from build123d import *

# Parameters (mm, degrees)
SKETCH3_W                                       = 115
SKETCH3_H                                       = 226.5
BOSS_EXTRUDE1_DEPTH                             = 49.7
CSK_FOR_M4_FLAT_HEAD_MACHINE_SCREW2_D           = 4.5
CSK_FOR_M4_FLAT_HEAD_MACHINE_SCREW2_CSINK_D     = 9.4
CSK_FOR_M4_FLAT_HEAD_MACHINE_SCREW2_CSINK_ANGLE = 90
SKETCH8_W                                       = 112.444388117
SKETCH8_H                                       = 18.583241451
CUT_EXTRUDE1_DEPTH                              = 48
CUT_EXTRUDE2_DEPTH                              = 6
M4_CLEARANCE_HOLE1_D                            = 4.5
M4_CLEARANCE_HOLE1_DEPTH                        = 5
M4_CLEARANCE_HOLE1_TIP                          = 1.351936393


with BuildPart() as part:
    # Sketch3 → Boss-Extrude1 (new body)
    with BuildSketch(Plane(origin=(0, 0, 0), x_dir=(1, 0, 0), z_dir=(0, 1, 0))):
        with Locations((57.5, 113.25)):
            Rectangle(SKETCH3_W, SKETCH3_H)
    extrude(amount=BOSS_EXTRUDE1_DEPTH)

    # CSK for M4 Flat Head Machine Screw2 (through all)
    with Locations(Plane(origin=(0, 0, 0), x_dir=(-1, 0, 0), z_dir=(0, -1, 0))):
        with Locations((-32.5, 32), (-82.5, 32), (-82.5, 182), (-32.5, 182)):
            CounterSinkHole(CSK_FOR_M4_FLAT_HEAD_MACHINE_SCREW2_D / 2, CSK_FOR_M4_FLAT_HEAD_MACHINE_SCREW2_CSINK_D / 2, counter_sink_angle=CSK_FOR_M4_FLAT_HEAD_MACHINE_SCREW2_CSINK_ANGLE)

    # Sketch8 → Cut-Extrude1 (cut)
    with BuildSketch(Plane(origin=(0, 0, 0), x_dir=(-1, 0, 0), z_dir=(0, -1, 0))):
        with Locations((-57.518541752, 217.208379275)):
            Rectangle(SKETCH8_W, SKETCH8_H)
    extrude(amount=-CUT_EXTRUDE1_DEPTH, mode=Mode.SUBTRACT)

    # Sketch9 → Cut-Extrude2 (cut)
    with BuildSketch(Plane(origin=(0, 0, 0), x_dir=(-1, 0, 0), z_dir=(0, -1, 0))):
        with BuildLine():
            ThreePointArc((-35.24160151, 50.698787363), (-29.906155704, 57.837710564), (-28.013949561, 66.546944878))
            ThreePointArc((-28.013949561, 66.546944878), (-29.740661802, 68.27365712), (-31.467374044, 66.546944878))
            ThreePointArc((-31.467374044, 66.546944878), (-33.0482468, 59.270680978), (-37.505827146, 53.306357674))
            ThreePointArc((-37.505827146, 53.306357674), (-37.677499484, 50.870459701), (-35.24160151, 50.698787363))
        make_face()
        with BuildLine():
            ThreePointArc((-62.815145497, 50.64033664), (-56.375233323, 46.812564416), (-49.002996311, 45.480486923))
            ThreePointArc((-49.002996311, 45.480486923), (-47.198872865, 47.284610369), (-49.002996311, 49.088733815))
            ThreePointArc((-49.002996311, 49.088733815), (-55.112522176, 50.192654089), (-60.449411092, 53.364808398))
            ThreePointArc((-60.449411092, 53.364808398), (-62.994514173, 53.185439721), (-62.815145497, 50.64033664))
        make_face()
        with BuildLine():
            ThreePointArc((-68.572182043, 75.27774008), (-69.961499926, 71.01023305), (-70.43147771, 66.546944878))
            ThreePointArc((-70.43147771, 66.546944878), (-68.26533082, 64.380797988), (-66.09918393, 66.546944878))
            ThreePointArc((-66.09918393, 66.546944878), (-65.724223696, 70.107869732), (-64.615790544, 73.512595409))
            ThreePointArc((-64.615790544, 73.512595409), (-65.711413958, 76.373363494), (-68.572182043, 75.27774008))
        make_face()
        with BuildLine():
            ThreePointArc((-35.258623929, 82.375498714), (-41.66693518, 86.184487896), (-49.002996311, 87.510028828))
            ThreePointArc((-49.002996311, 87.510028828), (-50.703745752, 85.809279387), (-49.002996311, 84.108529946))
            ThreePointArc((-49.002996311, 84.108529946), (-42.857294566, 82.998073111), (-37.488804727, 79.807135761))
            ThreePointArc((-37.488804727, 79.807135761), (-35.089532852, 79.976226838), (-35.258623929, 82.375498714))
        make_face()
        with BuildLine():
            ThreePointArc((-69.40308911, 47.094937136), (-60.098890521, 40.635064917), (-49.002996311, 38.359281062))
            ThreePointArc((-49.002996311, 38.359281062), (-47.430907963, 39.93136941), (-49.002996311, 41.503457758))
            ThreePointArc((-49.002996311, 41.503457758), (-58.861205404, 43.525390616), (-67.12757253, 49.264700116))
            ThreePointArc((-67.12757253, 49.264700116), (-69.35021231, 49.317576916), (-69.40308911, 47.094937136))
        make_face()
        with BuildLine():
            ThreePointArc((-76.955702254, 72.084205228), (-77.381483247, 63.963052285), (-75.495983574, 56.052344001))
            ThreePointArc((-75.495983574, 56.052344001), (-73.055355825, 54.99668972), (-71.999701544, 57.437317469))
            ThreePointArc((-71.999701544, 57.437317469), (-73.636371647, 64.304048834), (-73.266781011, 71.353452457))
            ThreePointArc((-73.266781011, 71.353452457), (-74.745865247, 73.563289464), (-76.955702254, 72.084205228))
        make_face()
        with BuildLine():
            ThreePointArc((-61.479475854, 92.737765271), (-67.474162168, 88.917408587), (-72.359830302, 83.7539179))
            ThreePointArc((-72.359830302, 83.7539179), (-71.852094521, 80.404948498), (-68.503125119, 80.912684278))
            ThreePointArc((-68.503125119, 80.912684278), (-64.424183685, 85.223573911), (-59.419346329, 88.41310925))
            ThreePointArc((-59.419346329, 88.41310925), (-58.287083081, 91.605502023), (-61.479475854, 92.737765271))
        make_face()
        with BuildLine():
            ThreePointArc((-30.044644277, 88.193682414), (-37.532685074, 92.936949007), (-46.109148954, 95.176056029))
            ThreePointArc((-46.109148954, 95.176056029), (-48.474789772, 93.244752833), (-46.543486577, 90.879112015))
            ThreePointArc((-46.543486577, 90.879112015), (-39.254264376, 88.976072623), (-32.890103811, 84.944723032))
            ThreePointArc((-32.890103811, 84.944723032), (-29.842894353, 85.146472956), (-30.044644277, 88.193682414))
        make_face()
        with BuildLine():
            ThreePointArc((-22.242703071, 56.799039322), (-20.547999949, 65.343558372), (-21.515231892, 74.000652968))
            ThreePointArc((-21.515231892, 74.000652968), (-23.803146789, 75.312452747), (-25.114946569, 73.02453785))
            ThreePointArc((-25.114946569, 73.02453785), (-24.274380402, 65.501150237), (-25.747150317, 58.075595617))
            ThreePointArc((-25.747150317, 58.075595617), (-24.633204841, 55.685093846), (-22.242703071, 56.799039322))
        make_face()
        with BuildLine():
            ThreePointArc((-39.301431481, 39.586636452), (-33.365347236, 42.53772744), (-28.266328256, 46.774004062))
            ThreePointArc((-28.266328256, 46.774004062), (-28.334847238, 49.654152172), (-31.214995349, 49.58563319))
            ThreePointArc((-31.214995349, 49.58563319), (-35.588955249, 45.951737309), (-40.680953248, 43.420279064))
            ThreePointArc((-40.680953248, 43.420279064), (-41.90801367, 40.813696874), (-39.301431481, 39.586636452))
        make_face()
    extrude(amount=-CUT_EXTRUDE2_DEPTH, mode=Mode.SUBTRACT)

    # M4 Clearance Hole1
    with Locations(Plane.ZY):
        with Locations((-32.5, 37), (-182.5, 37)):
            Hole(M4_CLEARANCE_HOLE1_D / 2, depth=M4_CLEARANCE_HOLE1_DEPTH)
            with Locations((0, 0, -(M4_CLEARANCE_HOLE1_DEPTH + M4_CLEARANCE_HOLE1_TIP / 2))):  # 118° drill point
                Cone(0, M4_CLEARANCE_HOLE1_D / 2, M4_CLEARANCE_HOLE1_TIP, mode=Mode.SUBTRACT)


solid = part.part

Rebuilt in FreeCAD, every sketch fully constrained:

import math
import FreeCAD as App
import Part
import Sketcher
from FreeCAD import Vector
Q = App.Units.Quantity

doc = App.newDocument("Part")
body = doc.addObject("PartDesign::Body", "Body")

sketch1 = doc.addObject("Sketcher::SketchObject", "Sketch")
body.addObject(sketch1)
sketch1.AttachmentSupport = (doc.XZ_Plane, [""])
sketch1.MapMode = "FlatFace"
sketch1.addGeometry(Part.LineSegment(Vector(0, -226, 0), Vector(0, 0, 0)), False)
sketch1.addGeometry(Part.LineSegment(Vector(0, 0, 0), Vector(115, 0, 0)), False)
sketch1.addGeometry(Part.LineSegment(Vector(115, 0, 0), Vector(115, -226, 0)), False)
sketch1.addGeometry(Part.LineSegment(Vector(115, -226, 0), Vector(0, -226, 0)), False)
sketch1.addConstraint(Sketcher.Constraint("Coincident", 0, 2, 1, 1))
sketch1.addConstraint(Sketcher.Constraint("Coincident", 1, 2, 2, 1))
sketch1.addConstraint(Sketcher.Constraint("Coincident", 2, 2, 3, 1))
sketch1.addConstraint(Sketcher.Constraint("Coincident", 3, 2, 0, 1))
sketch1.addConstraint(Sketcher.Constraint("Vertical", 0))
sketch1.addConstraint(Sketcher.Constraint("Horizontal", 1))
sketch1.addConstraint(Sketcher.Constraint("Vertical", 2))
sketch1.addConstraint(Sketcher.Constraint("Horizontal", 3))
sketch1.addConstraint(Sketcher.Constraint("Coincident", 0, 2, -1, 1))
sketch1.addConstraint(Sketcher.Constraint("DistanceX", 1, 1, 1, 2, Q("115 mm")))
sketch1.addConstraint(Sketcher.Constraint("DistanceY", 0, 1, 0, 2, Q("226.5 mm")))
pad1 = doc.addObject("PartDesign::Pad", "Pad")
body.addObject(pad1)
pad1.Profile = sketch1
pad1.Length = 49.7
pad1.Reversed = True

sketch2 = doc.addObject("Sketcher::SketchObject", "Sketch001")
body.addObject(sketch2)
sketch2.AttachmentSupport = (doc.XZ_Plane, [""])
sketch2.MapMode = "FlatFace"
sketch2.addGeometry(Part.Circle(Vector(32.5, -32, 0), Vector(0, 0, 1), 2.2), False)
sketch2.addGeometry(Part.Circle(Vector(82.5, -32, 0), Vector(0, 0, 1), 2.2), False)
sketch2.addGeometry(Part.Circle(Vector(82.5, -182, 0), Vector(0, 0, 1), 2.2), False)
sketch2.addGeometry(Part.Circle(Vector(32.5, -182, 0), Vector(0, 0, 1), 2.2), False)
sketch2.addConstraint(Sketcher.Constraint("Equal", 0, 1))
sketch2.addConstraint(Sketcher.Constraint("Equal", 1, 2))
sketch2.addConstraint(Sketcher.Constraint("Equal", 2, 3))
sketch2.addConstraint(Sketcher.Constraint("Horizontal", 0, 3, 1, 3))
sketch2.addConstraint(Sketcher.Constraint("Horizontal", 2, 3, 3, 3))
sketch2.addConstraint(Sketcher.Constraint("Vertical", 1, 3, 2, 3))
sketch2.addConstraint(Sketcher.Constraint("Vertical", 0, 3, 3, 3))
sketch2.addConstraint(Sketcher.Constraint("Diameter", 0, Q("4.5 mm")))
sketch2.addConstraint(Sketcher.Constraint("DistanceY", 0, 3, -1, 1, Q("32 mm")))
sketch2.addConstraint(Sketcher.Constraint("DistanceY", 2, 3, -1, 1, Q("182 mm")))
sketch2.addConstraint(Sketcher.Constraint("DistanceX", 0, 3, 1, 3, Q("50 mm")))
sketch2.addConstraint(Sketcher.Constraint("DistanceX", -1, 1, 0, 3, Q("32.5 mm")))
doc.recompute()
hole = doc.addObject("PartDesign::Hole", "Hole")
body.addObject(hole)
hole.Profile = sketch2
hole.ThreadType = "None"
hole.Diameter = 4.5
hole.DepthType = "ThroughAll"
hole.HoleCutType = "Countersink"
hole.HoleCutDiameter = 9.4
hole.HoleCutCountersinkAngle = 90

sketch3 = doc.addObject("Sketcher::SketchObject", "Sketch002")
body.addObject(sketch3)
sketch3.AttachmentSupport = (doc.XZ_Plane, [""])
sketch3.MapMode = "FlatFace"
sketch3.addGeometry(Part.LineSegment(Vector(114, -226, 0), Vector(114, -208, 0)), False)
sketch3.addGeometry(Part.LineSegment(Vector(114, -208, 0), Vector(1, -208, 0)), False)
sketch3.addGeometry(Part.LineSegment(Vector(1, -208, 0), Vector(1, -226, 0)), False)
sketch3.addGeometry(Part.LineSegment(Vector(1, -226, 0), Vector(114, -226, 0)), False)
sketch3.addConstraint(Sketcher.Constraint("Coincident", 0, 2, 1, 1))
sketch3.addConstraint(Sketcher.Constraint("Coincident", 1, 2, 2, 1))
sketch3.addConstraint(Sketcher.Constraint("Coincident", 2, 2, 3, 1))
sketch3.addConstraint(Sketcher.Constraint("Coincident", 3, 2, 0, 1))
sketch3.addConstraint(Sketcher.Constraint("Vertical", 0))
sketch3.addConstraint(Sketcher.Constraint("Horizontal", 1))
sketch3.addConstraint(Sketcher.Constraint("Vertical", 2))
sketch3.addConstraint(Sketcher.Constraint("Horizontal", 3))
sketch3.addConstraint(Sketcher.Constraint("DistanceY", 2, 2, -1, 1, Q("226.5 mm")))
sketch3.addConstraint(Sketcher.Constraint("DistanceX", 1, 2, 1, 1, Q("112.444388 mm")))
sketch3.addConstraint(Sketcher.Constraint("DistanceY", 0, 1, 0, 2, Q("18.583241 mm")))
sketch3.addConstraint(Sketcher.Constraint("DistanceX", -1, 1, 0, 2, Q("113.740736 mm")))
pocket1 = doc.addObject("PartDesign::Pocket", "Pocket")
body.addObject(pocket1)
pocket1.Profile = sketch3
pocket1.Length = 48

sketch4 = doc.addObject("Sketcher::SketchObject", "Sketch003")
body.addObject(sketch4)
sketch4.AttachmentSupport = (doc.XZ_Plane, [""])
sketch4.MapMode = "FlatFace"
sketch4.addGeometry(Part.ArcOfCircle(Part.Circle(Vector(49, -66.5, 0), Vector(0, 0, 1), 21), math.radians(131), math.radians(180)), False)
sketch4.addGeometry(Part.ArcOfCircle(Part.Circle(Vector(29.7, -66.5, 0), Vector(0, 0, 1), 1.7), math.radians(180), math.radians(360)), False)
sketch4.addGeometry(Part.ArcOfCircle(Part.Circle(Vector(49, -66.5, 0), Vector(0, 0, 1), 17.5), math.radians(131), math.radians(180)), False)
sketch4.addGeometry(Part.ArcOfCircle(Part.Circle(Vector(36.4, -52, 0), Vector(0, 0, 1), 1.7), math.radians(-49), math.radians(131)), False)
sketch4.addGeometry(Part.ArcOfCircle(Part.Circle(Vector(49, -66.5, 0), Vector(0, 0, 1), 21.1), math.radians(49), math.radians(90)), False)
sketch4.addGeometry(Part.ArcOfCircle(Part.Circle(Vector(49, -47.3, 0), Vector(0, 0, 1), 1.8), math.radians(90), math.radians(270)), False)
sketch4.addGeometry(Part.ArcOfCircle(Part.Circle(Vector(49, -66.5, 0), Vector(0, 0, 1), 17.5), math.radians(49), math.radians(90)), False)
sketch4.addGeometry(Part.ArcOfCircle(Part.Circle(Vector(61.6, -52, 0), Vector(0, 0, 1), 1.8), math.radians(-131), math.radians(49)), False)
sketch4.addGeometry(Part.ArcOfCircle(Part.Circle(Vector(49, -66.5, 0), Vector(0, 0, 1), 21.4), math.radians(-24), math.radians(0)), False)
sketch4.addGeometry(Part.ArcOfCircle(Part.Circle(Vector(68.3, -66.5, 0), Vector(0, 0, 1), 2.2), math.radians(0), math.radians(180)), False)
sketch4.addGeometry(Part.ArcOfCircle(Part.Circle(Vector(49, -66.5, 0), Vector(0, 0, 1), 17.1), math.radians(-24), math.radians(0)), False)
sketch4.addGeometry(Part.ArcOfCircle(Part.Circle(Vector(66.6, -74.4, 0), Vector(0, 0, 1), 2.2), math.radians(156), math.radians(336)), False)
sketch4.addGeometry(Part.ArcOfCircle(Part.Circle(Vector(49, -66.5, 0), Vector(0, 0, 1), 21), math.radians(-131), math.radians(-90)), False)
sketch4.addGeometry(Part.ArcOfCircle(Part.Circle(Vector(49, -85.8, 0), Vector(0, 0, 1), 1.7), math.radians(-90), math.radians(90)), False)
sketch4.addGeometry(Part.ArcOfCircle(Part.Circle(Vector(49, -66.5, 0), Vector(0, 0, 1), 17.6), math.radians(-131), math.radians(-90)), False)
sketch4.addGeometry(Part.ArcOfCircle(Part.Circle(Vector(36.4, -81.1, 0), Vector(0, 0, 1), 1.7), math.radians(49), math.radians(229)), False)
sketch4.addGeometry(Part.ArcOfCircle(Part.Circle(Vector(49, -66.5, 0), Vector(0, 0, 1), 28.2), math.radians(44), math.radians(90)), False)
sketch4.addGeometry(Part.ArcOfCircle(Part.Circle(Vector(49, -39.9, 0), Vector(0, 0, 1), 1.6), math.radians(90), math.radians(270)), False)
sketch4.addGeometry(Part.ArcOfCircle(Part.Circle(Vector(49, -66.5, 0), Vector(0, 0, 1), 25), math.radians(44), math.radians(90)), False)
sketch4.addGeometry(Part.ArcOfCircle(Part.Circle(Vector(68.3, -48.2, 0), Vector(0, 0, 1), 1.6), math.radians(-136), math.radians(44)), False)
sketch4.addGeometry(Part.ArcOfCircle(Part.Circle(Vector(49, -66.5, 0), Vector(0, 0, 1), 28.5), math.radians(-11), math.radians(22)), False)
sketch4.addGeometry(Part.ArcOfCircle(Part.Circle(Vector(73.7, -56.7, 0), Vector(0, 0, 1), 1.9), math.radians(22), math.radians(202)), False)
sketch4.addGeometry(Part.ArcOfCircle(Part.Circle(Vector(49, -66.5, 0), Vector(0, 0, 1), 24.7), math.radians(-11), math.radians(22)), False)
sketch4.addGeometry(Part.ArcOfCircle(Part.Circle(Vector(75.1, -71.7, 0), Vector(0, 0, 1), 1.9), math.radians(169), math.radians(349)), False)
sketch4.addGeometry(Part.ArcOfCircle(Part.Circle(Vector(49, -66.5, 0), Vector(0, 0, 1), 29), math.radians(-65), math.radians(-36)), False)
sketch4.addGeometry(Part.ArcOfCircle(Part.Circle(Vector(70.4, -82.3, 0), Vector(0, 0, 1), 2.4), math.radians(-36), math.radians(144)), False)
sketch4.addGeometry(Part.ArcOfCircle(Part.Circle(Vector(49, -66.5, 0), Vector(0, 0, 1), 24.2), math.radians(-65), math.radians(-36)), False)
sketch4.addGeometry(Part.ArcOfCircle(Part.Circle(Vector(60.4, -90.6, 0), Vector(0, 0, 1), 2.4), math.radians(115), math.radians(295)), False)
sketch4.addGeometry(Part.ArcOfCircle(Part.Circle(Vector(49, -66.5, 0), Vector(0, 0, 1), 28.8), math.radians(-131), math.radians(-96)), False)
sketch4.addGeometry(Part.ArcOfCircle(Part.Circle(Vector(46.3, -93, 0), Vector(0, 0, 1), 2.2), math.radians(-96), math.radians(84)), False)
sketch4.addGeometry(Part.ArcOfCircle(Part.Circle(Vector(49, -66.5, 0), Vector(0, 0, 1), 24.5), math.radians(-131), math.radians(-96)), False)
sketch4.addGeometry(Part.ArcOfCircle(Part.Circle(Vector(31.5, -86.6, 0), Vector(0, 0, 1), 2.2), math.radians(49), math.radians(229)), False)
sketch4.addGeometry(Part.ArcOfCircle(Part.Circle(Vector(49, -66.5, 0), Vector(0, 0, 1), 28.5), math.radians(160), math.radians(195)), False)
sketch4.addGeometry(Part.ArcOfCircle(Part.Circle(Vector(23.3, -73.5, 0), Vector(0, 0, 1), 1.9), math.radians(-165), math.radians(15)), False)
sketch4.addGeometry(Part.ArcOfCircle(Part.Circle(Vector(49, -66.5, 0), Vector(0, 0, 1), 24.8), math.radians(160), math.radians(195)), False)
sketch4.addGeometry(Part.ArcOfCircle(Part.Circle(Vector(24, -57.4, 0), Vector(0, 0, 1), 1.9), math.radians(-20), math.radians(160)), False)
sketch4.addGeometry(Part.ArcOfCircle(Part.Circle(Vector(49, -66.5, 0), Vector(0, 0, 1), 28.7), math.radians(110), math.radians(136)), False)
sketch4.addGeometry(Part.ArcOfCircle(Part.Circle(Vector(29.7, -48.2, 0), Vector(0, 0, 1), 2), math.radians(136), math.radians(316)), False)
sketch4.addGeometry(Part.ArcOfCircle(Part.Circle(Vector(49, -66.5, 0), Vector(0, 0, 1), 24.6), math.radians(110), math.radians(136)), False)
sketch4.addGeometry(Part.ArcOfCircle(Part.Circle(Vector(40, -41.5, 0), Vector(0, 0, 1), 2), math.radians(-70), math.radians(110)), False)
sketch4.addConstraint(Sketcher.Constraint("Tangent", 0, 2, 1, 1))
sketch4.addConstraint(Sketcher.Constraint("Tangent", 1, 2, 2, 2))
sketch4.addConstraint(Sketcher.Constraint("Tangent", 2, 1, 3, 1))
sketch4.addConstraint(Sketcher.Constraint("Tangent", 3, 2, 0, 1))
sketch4.addConstraint(Sketcher.Constraint("Tangent", 4, 2, 5, 1))
sketch4.addConstraint(Sketcher.Constraint("Tangent", 5, 2, 6, 2))
sketch4.addConstraint(Sketcher.Constraint("Tangent", 6, 1, 7, 1))
sketch4.addConstraint(Sketcher.Constraint("Tangent", 7, 2, 4, 1))
sketch4.addConstraint(Sketcher.Constraint("Tangent", 8, 2, 9, 1))
sketch4.addConstraint(Sketcher.Constraint("Tangent", 9, 2, 10, 2))
sketch4.addConstraint(Sketcher.Constraint("Tangent", 10, 1, 11, 1))
sketch4.addConstraint(Sketcher.Constraint("Tangent", 11, 2, 8, 1))
sketch4.addConstraint(Sketcher.Constraint("Tangent", 12, 2, 13, 1))
sketch4.addConstraint(Sketcher.Constraint("Tangent", 13, 2, 14, 2))
sketch4.addConstraint(Sketcher.Constraint("Tangent", 14, 1, 15, 1))
sketch4.addConstraint(Sketcher.Constraint("Tangent", 15, 2, 12, 1))
sketch4.addConstraint(Sketcher.Constraint("Tangent", 16, 2, 17, 1))
sketch4.addConstraint(Sketcher.Constraint("Tangent", 17, 2, 18, 2))
sketch4.addConstraint(Sketcher.Constraint("Tangent", 18, 1, 19, 1))
sketch4.addConstraint(Sketcher.Constraint("Tangent", 19, 2, 16, 1))
sketch4.addConstraint(Sketcher.Constraint("Tangent", 20, 2, 21, 1))
sketch4.addConstraint(Sketcher.Constraint("Tangent", 21, 2, 22, 2))
sketch4.addConstraint(Sketcher.Constraint("Tangent", 22, 1, 23, 1))
sketch4.addConstraint(Sketcher.Constraint("Tangent", 23, 2, 20, 1))
sketch4.addConstraint(Sketcher.Constraint("Tangent", 24, 2, 25, 1))
sketch4.addConstraint(Sketcher.Constraint("Tangent", 25, 2, 26, 2))
sketch4.addConstraint(Sketcher.Constraint("Tangent", 26, 1, 27, 1))
sketch4.addConstraint(Sketcher.Constraint("Tangent", 27, 2, 24, 1))
sketch4.addConstraint(Sketcher.Constraint("Tangent", 28, 2, 29, 1))
sketch4.addConstraint(Sketcher.Constraint("Tangent", 29, 2, 30, 2))
sketch4.addConstraint(Sketcher.Constraint("Tangent", 30, 1, 31, 1))
sketch4.addConstraint(Sketcher.Constraint("Tangent", 31, 2, 28, 1))
sketch4.addConstraint(Sketcher.Constraint("Tangent", 32, 2, 33, 1))
sketch4.addConstraint(Sketcher.Constraint("Tangent", 33, 2, 34, 2))
sketch4.addConstraint(Sketcher.Constraint("Tangent", 34, 1, 35, 1))
sketch4.addConstraint(Sketcher.Constraint("Tangent", 35, 2, 32, 1))
sketch4.addConstraint(Sketcher.Constraint("Tangent", 36, 2, 37, 1))
sketch4.addConstraint(Sketcher.Constraint("Tangent", 37, 2, 38, 2))
sketch4.addConstraint(Sketcher.Constraint("Tangent", 38, 1, 39, 1))
sketch4.addConstraint(Sketcher.Constraint("Tangent", 39, 2, 36, 1))
sketch4.addConstraint(Sketcher.Constraint("Coincident", 2, 3, 0, 3))
sketch4.addConstraint(Sketcher.Constraint("Coincident", 4, 3, 0, 3))
sketch4.addConstraint(Sketcher.Constraint("Coincident", 6, 3, 0, 3))
sketch4.addConstraint(Sketcher.Constraint("Coincident", 8, 3, 0, 3))
sketch4.addConstraint(Sketcher.Constraint("Coincident", 10, 3, 0, 3))
sketch4.addConstraint(Sketcher.Constraint("Coincident", 12, 3, 0, 3))
sketch4.addConstraint(Sketcher.Constraint("Coincident", 14, 3, 0, 3))
sketch4.addConstraint(Sketcher.Constraint("Coincident", 16, 3, 0, 3))
sketch4.addConstraint(Sketcher.Constraint("Coincident", 18, 3, 0, 3))
sketch4.addConstraint(Sketcher.Constraint("Coincident", 20, 3, 0, 3))
sketch4.addConstraint(Sketcher.Constraint("Coincident", 22, 3, 0, 3))
sketch4.addConstraint(Sketcher.Constraint("Coincident", 24, 3, 0, 3))
sketch4.addConstraint(Sketcher.Constraint("Coincident", 26, 3, 0, 3))
sketch4.addConstraint(Sketcher.Constraint("Coincident", 28, 3, 0, 3))
sketch4.addConstraint(Sketcher.Constraint("Coincident", 30, 3, 0, 3))
sketch4.addConstraint(Sketcher.Constraint("Coincident", 32, 3, 0, 3))
sketch4.addConstraint(Sketcher.Constraint("Coincident", 34, 3, 0, 3))
sketch4.addConstraint(Sketcher.Constraint("Coincident", 36, 3, 0, 3))
sketch4.addConstraint(Sketcher.Constraint("Coincident", 38, 3, 0, 3))
sketch4.addConstraint(Sketcher.Constraint("Horizontal", 0, 3, 1, 3))
sketch4.addConstraint(Sketcher.Constraint("Horizontal", 3, 3, 7, 3))
sketch4.addConstraint(Sketcher.Constraint("Horizontal", 8, 3, 9, 3))
sketch4.addConstraint(Sketcher.Constraint("Horizontal", 19, 3, 37, 3))
sketch4.addConstraint(Sketcher.Constraint("Horizontal", 33, 3, 10, 1))
sketch4.addConstraint(Sketcher.Constraint("Horizontal", 39, 3, 17, 2))
sketch4.addConstraint(Sketcher.Constraint("Horizontal", 35, 3, 21, 2))
sketch4.addConstraint(Sketcher.Constraint("Vertical", 4, 3, 5, 3))
sketch4.addConstraint(Sketcher.Constraint("Vertical", 12, 3, 13, 3))
sketch4.addConstraint(Sketcher.Constraint("Vertical", 3, 3, 15, 3))
sketch4.addConstraint(Sketcher.Constraint("Vertical", 16, 3, 17, 3))
sketch4.addConstraint(Sketcher.Constraint("Vertical", 9, 3, 19, 3))
sketch4.addConstraint(Sketcher.Constraint("Vertical", 1, 3, 37, 3))
sketch4.addConstraint(Sketcher.Constraint("Vertical", 31, 3, 1, 2))
sketch4.addConstraint(Sketcher.Constraint("Vertical", 27, 3, 6, 1))
sketch4.addConstraint(Sketcher.Constraint("Vertical", 25, 3, 8, 2))
sketch4.addConstraint(Sketcher.Constraint("Radius", 21, Q("1.880302 mm")))
sketch4.addConstraint(Sketcher.Constraint("Radius", 6, Q("17.458211 mm")))
sketch4.addConstraint(Sketcher.Constraint("Radius", 8, Q("21.428481 mm")))
sketch4.addConstraint(Sketcher.Constraint("Radius", 13, Q("1.700749 mm")))
sketch4.addConstraint(Sketcher.Constraint("Radius", 17, Q("1.572088 mm")))
sketch4.addConstraint(Sketcher.Constraint("Radius", 25, Q("2.39514 mm")))
sketch4.addConstraint(Sketcher.Constraint("Radius", 29, Q("2.15942 mm")))
sketch4.addConstraint(Sketcher.Constraint("Radius", 32, Q("28.480431 mm")))
sketch4.addConstraint(Sketcher.Constraint("Radius", 34, Q("24.75072 mm")))
sketch4.addConstraint(Sketcher.Constraint("Radius", 37, Q("2.037148 mm")))
sketch4.addConstraint(Sketcher.Constraint("Radius", 0, Q("20.989047 mm")))
sketch4.addConstraint(Sketcher.Constraint("Radius", 1, Q("1.726712 mm")))
sketch4.addConstraint(Sketcher.Constraint("Radius", 4, Q("21.066458 mm")))
sketch4.addConstraint(Sketcher.Constraint("Radius", 9, Q("2.166147 mm")))
sketch4.addConstraint(Sketcher.Constraint("Radius", 12, Q("20.963084 mm")))
sketch4.addConstraint(Sketcher.Constraint("Radius", 16, Q("28.187664 mm")))
sketch4.addConstraint(Sketcher.Constraint("Radius", 20, Q("28.495877 mm")))
sketch4.addConstraint(Sketcher.Constraint("Radius", 24, Q("29.010716 mm")))
sketch4.addConstraint(Sketcher.Constraint("Radius", 28, Q("28.774995 mm")))
sketch4.addConstraint(Sketcher.Constraint("DistanceY", 25, 3, -1, 1, Q("82.333301 mm")))
sketch4.addConstraint(Sketcher.Constraint("DistanceX", -1, 1, 3, 2, Q("35.241602 mm")))
sketch4.addConstraint(Sketcher.Constraint("DistanceY", 15, 2, -1, 1, Q("82.375499 mm")))
sketch4.addConstraint(Sketcher.Constraint("DistanceX", -1, 1, 21, 2, Q("71.999702 mm")))
sketch4.addConstraint(Sketcher.Constraint("DistanceX", -1, 1, 23, 3, Q("75.111242 mm")))
sketch4.addConstraint(Sketcher.Constraint("DistanceX", -1, 1, 33, 3, Q("23.315089 mm")))
sketch4.addConstraint(Sketcher.Constraint("DistanceX", -1, 1, 28, 2, Q("46.109149 mm")))
pocket2 = doc.addObject("PartDesign::Pocket", "Pocket001")
body.addObject(pocket2)
pocket2.Profile = sketch4
pocket2.Length = 6

sketch5 = doc.addObject("Sketcher::SketchObject", "Sketch004")
body.addObject(sketch5)
sketch5.AttachmentSupport = (doc.YZ_Plane, [""])
sketch5.MapMode = "FlatFace"
sketch5.addGeometry(Part.Circle(Vector(37, -32.5, 0), Vector(0, 0, 1), 2.2), False)
sketch5.addGeometry(Part.Circle(Vector(37, -182.5, 0), Vector(0, 0, 1), 2.2), False)
sketch5.addConstraint(Sketcher.Constraint("Equal", 0, 1))
sketch5.addConstraint(Sketcher.Constraint("Vertical", 0, 3, 1, 3))
sketch5.addConstraint(Sketcher.Constraint("Diameter", 0, Q("4.5 mm")))
sketch5.addConstraint(Sketcher.Constraint("DistanceX", -1, 1, 0, 3, Q("37 mm")))
sketch5.addConstraint(Sketcher.Constraint("DistanceY", 1, 3, 0, 3, Q("150 mm")))
sketch5.addConstraint(Sketcher.Constraint("DistanceY", 0, 3, -1, 1, Q("32.5 mm")))
doc.recompute()
hole2 = doc.addObject("PartDesign::Hole", "Hole001")
body.addObject(hole2)
hole2.Profile = sketch5
hole2.ThreadType = "None"
hole2.Diameter = 4.5
hole2.DepthType = "Dimension"
hole2.Depth = 5
hole2.DrillPoint = "Angled"
hole2.DrillPointAngle = 118
hole2.Reversed = True

doc.recompute()
